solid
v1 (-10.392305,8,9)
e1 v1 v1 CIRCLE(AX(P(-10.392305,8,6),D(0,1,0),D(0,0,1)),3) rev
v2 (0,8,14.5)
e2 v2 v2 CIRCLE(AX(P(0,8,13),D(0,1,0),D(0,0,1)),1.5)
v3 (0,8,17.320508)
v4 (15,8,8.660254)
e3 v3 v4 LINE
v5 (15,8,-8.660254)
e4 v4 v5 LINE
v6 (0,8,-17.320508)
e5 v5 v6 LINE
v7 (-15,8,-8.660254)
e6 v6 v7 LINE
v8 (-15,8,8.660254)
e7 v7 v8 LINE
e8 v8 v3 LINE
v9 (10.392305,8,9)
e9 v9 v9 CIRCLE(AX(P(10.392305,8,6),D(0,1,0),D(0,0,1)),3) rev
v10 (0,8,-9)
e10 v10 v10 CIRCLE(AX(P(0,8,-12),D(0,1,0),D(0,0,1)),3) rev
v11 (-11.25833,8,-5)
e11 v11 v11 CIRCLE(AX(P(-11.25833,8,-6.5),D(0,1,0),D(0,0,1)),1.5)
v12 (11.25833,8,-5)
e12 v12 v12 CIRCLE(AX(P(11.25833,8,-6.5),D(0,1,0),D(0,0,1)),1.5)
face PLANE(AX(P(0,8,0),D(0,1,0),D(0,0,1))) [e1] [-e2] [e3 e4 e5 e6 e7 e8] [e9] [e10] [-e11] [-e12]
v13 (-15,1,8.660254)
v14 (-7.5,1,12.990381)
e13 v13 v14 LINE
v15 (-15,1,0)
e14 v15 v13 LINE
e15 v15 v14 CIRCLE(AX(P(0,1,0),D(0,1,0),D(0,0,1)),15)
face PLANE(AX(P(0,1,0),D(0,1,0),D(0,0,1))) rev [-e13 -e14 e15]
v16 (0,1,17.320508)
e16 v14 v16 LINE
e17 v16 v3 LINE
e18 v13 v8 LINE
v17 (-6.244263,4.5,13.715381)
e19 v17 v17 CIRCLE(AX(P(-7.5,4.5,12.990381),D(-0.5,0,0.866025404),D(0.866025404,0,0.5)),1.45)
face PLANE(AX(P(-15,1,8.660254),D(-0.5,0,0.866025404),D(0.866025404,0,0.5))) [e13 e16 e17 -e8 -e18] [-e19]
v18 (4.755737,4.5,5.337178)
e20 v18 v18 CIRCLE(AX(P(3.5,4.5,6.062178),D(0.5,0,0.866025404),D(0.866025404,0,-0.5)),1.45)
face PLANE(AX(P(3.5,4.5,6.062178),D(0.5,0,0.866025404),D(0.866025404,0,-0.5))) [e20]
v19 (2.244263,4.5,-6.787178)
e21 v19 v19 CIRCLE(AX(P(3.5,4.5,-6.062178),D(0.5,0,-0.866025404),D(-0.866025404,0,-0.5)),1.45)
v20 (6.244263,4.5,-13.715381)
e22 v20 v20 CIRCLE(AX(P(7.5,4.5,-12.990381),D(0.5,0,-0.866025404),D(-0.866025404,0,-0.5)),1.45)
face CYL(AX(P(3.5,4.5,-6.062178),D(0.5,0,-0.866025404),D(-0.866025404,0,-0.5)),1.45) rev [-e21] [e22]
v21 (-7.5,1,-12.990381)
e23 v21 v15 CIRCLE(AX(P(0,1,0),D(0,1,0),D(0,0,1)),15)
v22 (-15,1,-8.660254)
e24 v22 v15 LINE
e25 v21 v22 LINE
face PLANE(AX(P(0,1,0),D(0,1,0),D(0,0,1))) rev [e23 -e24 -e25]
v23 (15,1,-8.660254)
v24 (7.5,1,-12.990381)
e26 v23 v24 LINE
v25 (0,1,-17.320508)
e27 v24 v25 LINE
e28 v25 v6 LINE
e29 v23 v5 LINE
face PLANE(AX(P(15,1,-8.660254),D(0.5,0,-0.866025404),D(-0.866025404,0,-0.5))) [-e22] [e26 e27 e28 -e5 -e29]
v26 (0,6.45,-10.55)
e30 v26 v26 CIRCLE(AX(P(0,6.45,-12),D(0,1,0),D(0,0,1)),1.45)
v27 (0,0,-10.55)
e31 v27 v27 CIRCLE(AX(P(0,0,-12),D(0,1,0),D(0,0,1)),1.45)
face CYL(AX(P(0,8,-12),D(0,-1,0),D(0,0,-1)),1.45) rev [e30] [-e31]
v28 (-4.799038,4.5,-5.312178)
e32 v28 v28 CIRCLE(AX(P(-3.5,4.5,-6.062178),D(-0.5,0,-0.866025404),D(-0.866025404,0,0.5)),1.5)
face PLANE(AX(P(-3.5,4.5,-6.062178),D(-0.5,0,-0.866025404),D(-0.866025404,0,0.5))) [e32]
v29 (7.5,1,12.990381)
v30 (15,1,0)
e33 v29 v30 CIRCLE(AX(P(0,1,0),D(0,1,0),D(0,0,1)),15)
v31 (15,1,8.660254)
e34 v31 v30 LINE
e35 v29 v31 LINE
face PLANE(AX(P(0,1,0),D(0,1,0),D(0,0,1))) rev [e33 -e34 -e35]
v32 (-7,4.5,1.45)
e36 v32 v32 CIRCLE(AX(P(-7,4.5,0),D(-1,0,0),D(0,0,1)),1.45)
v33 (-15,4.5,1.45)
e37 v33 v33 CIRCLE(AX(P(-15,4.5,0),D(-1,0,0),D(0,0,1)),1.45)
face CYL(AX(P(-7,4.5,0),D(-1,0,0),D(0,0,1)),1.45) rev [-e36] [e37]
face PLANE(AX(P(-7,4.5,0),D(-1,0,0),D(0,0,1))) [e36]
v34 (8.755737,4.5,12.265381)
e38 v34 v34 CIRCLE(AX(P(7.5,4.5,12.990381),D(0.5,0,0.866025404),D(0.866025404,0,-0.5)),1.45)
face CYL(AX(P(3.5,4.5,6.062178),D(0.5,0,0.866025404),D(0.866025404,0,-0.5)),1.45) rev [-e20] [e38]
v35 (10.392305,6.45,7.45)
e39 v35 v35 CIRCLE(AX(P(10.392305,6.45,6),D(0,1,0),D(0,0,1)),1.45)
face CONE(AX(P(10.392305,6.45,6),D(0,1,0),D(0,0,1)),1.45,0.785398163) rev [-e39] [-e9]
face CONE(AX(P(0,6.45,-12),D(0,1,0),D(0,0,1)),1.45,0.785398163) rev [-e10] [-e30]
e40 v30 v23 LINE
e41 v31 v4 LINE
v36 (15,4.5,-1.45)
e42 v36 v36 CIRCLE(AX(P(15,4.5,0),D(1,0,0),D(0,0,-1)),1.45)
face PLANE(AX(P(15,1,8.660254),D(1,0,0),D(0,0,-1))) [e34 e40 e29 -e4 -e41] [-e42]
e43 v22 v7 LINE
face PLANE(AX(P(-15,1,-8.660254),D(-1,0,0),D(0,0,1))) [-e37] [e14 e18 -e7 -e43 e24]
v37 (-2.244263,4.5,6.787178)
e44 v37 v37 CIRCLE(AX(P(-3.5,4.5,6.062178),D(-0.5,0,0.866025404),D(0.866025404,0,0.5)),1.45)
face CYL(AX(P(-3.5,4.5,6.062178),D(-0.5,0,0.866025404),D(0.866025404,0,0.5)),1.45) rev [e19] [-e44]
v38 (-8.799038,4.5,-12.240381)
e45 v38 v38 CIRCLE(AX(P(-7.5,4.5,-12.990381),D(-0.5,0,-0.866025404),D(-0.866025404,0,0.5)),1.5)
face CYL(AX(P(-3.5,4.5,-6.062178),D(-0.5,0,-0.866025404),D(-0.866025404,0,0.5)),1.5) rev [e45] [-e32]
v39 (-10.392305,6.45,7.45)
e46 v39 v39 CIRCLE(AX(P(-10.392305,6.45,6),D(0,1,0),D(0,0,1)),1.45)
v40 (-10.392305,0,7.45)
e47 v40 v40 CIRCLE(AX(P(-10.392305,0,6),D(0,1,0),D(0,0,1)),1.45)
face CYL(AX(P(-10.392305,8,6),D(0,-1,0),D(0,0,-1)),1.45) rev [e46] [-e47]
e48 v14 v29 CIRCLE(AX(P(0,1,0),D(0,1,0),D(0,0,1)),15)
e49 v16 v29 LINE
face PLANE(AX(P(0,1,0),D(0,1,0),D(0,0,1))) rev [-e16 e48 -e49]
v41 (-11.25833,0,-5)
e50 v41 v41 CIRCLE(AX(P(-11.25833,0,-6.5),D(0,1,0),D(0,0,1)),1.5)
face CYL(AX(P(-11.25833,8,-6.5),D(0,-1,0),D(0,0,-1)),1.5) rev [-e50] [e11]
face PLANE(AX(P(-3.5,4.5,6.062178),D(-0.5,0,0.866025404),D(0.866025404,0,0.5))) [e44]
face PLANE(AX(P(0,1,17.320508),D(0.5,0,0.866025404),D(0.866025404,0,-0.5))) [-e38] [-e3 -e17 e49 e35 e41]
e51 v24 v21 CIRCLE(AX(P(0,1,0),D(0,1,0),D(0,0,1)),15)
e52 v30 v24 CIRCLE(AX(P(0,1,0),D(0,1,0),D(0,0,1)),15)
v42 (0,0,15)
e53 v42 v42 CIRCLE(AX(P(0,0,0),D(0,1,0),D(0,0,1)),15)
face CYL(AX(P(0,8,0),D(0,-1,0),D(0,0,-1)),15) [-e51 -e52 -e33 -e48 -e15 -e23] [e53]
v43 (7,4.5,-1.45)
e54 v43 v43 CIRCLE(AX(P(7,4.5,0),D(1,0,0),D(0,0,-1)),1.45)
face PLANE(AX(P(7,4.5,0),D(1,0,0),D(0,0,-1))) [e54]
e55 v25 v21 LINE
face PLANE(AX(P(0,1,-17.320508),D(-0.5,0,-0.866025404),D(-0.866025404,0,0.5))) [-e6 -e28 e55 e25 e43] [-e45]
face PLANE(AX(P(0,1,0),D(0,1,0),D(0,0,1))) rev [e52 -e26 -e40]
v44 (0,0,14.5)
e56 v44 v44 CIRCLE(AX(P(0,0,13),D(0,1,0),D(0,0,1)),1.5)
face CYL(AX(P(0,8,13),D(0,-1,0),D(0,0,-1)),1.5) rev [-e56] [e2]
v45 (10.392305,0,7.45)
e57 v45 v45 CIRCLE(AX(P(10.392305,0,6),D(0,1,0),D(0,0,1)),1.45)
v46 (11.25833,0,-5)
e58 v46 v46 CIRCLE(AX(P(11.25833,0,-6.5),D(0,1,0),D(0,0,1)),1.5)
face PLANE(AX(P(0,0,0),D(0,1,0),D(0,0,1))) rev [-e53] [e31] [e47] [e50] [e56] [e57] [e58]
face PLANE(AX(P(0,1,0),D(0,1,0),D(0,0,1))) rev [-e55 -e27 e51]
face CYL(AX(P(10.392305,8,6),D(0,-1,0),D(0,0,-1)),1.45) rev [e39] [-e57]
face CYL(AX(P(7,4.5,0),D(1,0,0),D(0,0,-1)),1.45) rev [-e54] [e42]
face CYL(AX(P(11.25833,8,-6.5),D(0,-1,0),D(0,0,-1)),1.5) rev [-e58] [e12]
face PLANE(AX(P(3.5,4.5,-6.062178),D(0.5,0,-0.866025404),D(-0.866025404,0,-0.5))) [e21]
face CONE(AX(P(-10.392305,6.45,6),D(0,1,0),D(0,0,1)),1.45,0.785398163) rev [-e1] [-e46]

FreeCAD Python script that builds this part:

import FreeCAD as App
import Part
import Sketcher
Q = App.Units.Quantity


def edges_at(feature, points):
    """Names of the edges that pass closest to the given points."""
    edges = feature.Shape.Edges
    near = lambda p: min(range(len(edges)), key=lambda i: edges[i].distToShape(Part.Vertex(*p))[0])
    return sorted({f"Edge{near(p) + 1}" for p in points})


def add_polygon(sketch, points):
    """Adds a closed chain of lines whose ends are joined by coincident constraints."""
    first, n = sketch.GeometryCount, len(points)
    for a, b in zip(points, points[1:] + points[:1]):
        sketch.addGeometry(Part.LineSegment(App.Vector(*a, 0), App.Vector(*b, 0)), False)
    for i in range(n):
        sketch.addConstraint(Sketcher.Constraint("Coincident", first + i, 2, first + (i + 1) % n, 1))

doc = App.newDocument("Part")
params = doc.addObject("Spreadsheet::Sheet", "Params")
for row, (alias, value) in enumerate([
    ("sketch1_diameter", "30 mm"),
    ("sketch1_diameter2", "3 mm"),
    ("sketch1_diameter3", "2.9 mm"),
    ("pad1_length", "8 mm"),
    ("sketch2_diameter", "3 mm"),
    ("sketch2_diameter2", "2.9 mm"),
    ("pad2_length", "7 mm"),
    ("sketch3_diameter", "2.9 mm"),
    ("pocket1_length", "8 mm"),
    ("sketch4_diameter", "2.9 mm"),
    ("pocket2_length", "8 mm"),
    ("sketch5_diameter", "2.9 mm"),
    ("pocket3_length", "8 mm"),
    ("sketch6_diameter", "2.9 mm"),
    ("pocket4_length", "8 mm"),
    ("sketch7_diameter", "2.9 mm"),
    ("pocket5_length", "8 mm"),
    ("sketch8_diameter", "3 mm"),
    ("pocket6_length", "8 mm"),
    ("chamfer_size", "1.55 mm"),
], start=1):
    params.set(f"A{row}", alias)
    params.set(f"B{row}", "=" + value)
    params.setAlias(f"B{row}", alias)

body = doc.addObject("PartDesign::Body", "Body")

# Sketch on XZ plane
sketch1 = doc.addObject("Sketcher::SketchObject", "Sketch")
body.addObject(sketch1)
sketch1.AttachmentSupport = (doc.XZ_Plane, [""])
sketch1.MapMode = "FlatFace"
sketch1.addGeometry([
    Part.Circle(App.Vector(0, 0, 0), App.Vector(0, 0, 1), 15),  # 0
    Part.Circle(App.Vector(-10.4, 6, 0), App.Vector(0, 0, 1), 1.4),  # 1
    Part.Circle(App.Vector(0, 13, 0), App.Vector(0, 0, 1), 1.5),  # 2
    Part.Circle(App.Vector(10.4, 6, 0), App.Vector(0, 0, 1), 1.4),  # 3
    Part.Circle(App.Vector(-11.3, -6.5, 0), App.Vector(0, 0, 1), 1.5),  # 4
    Part.Circle(App.Vector(0, -12, 0), App.Vector(0, 0, 1), 1.4),  # 5
    Part.Circle(App.Vector(11.3, -6.5, 0), App.Vector(0, 0, 1), 1.5),  # 6
], False)
sketch1.addConstraint([
    Sketcher.Constraint("Coincident", 0, 3, -1, 1),
    Sketcher.Constraint("Equal", 1, 3),
    Sketcher.Constraint("Equal", 2, 4),
    Sketcher.Constraint("Equal", 3, 5),
    Sketcher.Constraint("Equal", 4, 6),
    Sketcher.Constraint("Symmetric", 1, 3, 3, 3, -2),
    Sketcher.Constraint("Symmetric", 4, 3, 6, 3, -2),
    Sketcher.Constraint("PointOnObject", 2, 3, -2),
    Sketcher.Constraint("PointOnObject", 5, 3, -2),
    Sketcher.Constraint("Diameter", 0, Q("30 mm")),
    Sketcher.Constraint("Diameter", 2, Q("3 mm")),
    Sketcher.Constraint("Diameter", 1, Q("2.9 mm")),
    Sketcher.Constraint("DistanceY", -1, 1, 1, 3, Q("6 mm")),
    Sketcher.Constraint("DistanceY", -1, 1, 2, 3, Q("13 mm")),
    Sketcher.Constraint("DistanceY", 5, 3, -1, 1, Q("12 mm")),
    Sketcher.Constraint("DistanceY", 4, 3, -1, 1, Q("6.5 mm")),
    Sketcher.Constraint("DistanceX", 4, 3, -1, 1, Q("11.25833 mm")),
    Sketcher.Constraint("DistanceX", 1, 3, 3, 3, Q("20.78461 mm")),
])
sketch1.setExpression("Constraints[9]", "Params.sketch1_diameter")
sketch1.setExpression("Constraints[10]", "Params.sketch1_diameter2")
sketch1.setExpression("Constraints[11]", "Params.sketch1_diameter3")
pad1 = doc.addObject("PartDesign::Pad", "Pad")
body.addObject(pad1)
pad1.Profile = sketch1
pad1.setExpression("Length", "Params.pad1_length")
pad1.Reversed = True

# Sketch on XZ plane
sketch2 = doc.addObject("Sketcher::SketchObject", "Sketch001")
body.addObject(sketch2)
sketch2.AttachmentSupport = (doc.XZ_Plane, [""])
sketch2.MapMode = "FlatFace"
sketch2.AttachmentOffset = App.Placement(App.Vector(0, 0, -8), App.Rotation())
add_polygon(sketch2, [(0, -17.3), (-15, -8.7), (-15, 8.7), (0, 17.3), (15, 8.7), (15, -8.7)])  # lines 0-5
sketch2.addGeometry(Part.Circle(App.Vector(-10.4, 6, 0), App.Vector(0, 0, 1), 1.4), False)  # 6
sketch2.addGeometry(Part.Circle(App.Vector(0, 13, 0), App.Vector(0, 0, 1), 1.5), False)  # 7
sketch2.addGeometry(Part.Circle(App.Vector(10.4, 6, 0), App.Vector(0, 0, 1), 1.4), False)  # 8
sketch2.addGeometry(Part.Circle(App.Vector(-11.3, -6.5, 0), App.Vector(0, 0, 1), 1.5), False)  # 9
sketch2.addGeometry(Part.Circle(App.Vector(0, -12, 0), App.Vector(0, 0, 1), 1.4), False)  # 10
sketch2.addGeometry(Part.Circle(App.Vector(11.3, -6.5, 0), App.Vector(0, 0, 1), 1.5), False)  # 11
sketch2.addConstraint([
    Sketcher.Constraint("Vertical", 1),
    Sketcher.Constraint("Vertical", 4),
    Sketcher.Constraint("Equal", 6, 8),
    Sketcher.Constraint("Equal", 7, 9),
    Sketcher.Constraint("Equal", 8, 10),
    Sketcher.Constraint("Equal", 9, 11),
    Sketcher.Constraint("Symmetric", 0, 2, 3, 2, -1, 1),
    Sketcher.Constraint("Symmetric", 2, 2, 5, 2, -1, 1),
    Sketcher.Constraint("Symmetric", 6, 3, 8, 3, -2),
    Sketcher.Constraint("Symmetric", 9, 3, 11, 3, -2),
    Sketcher.Constraint("PointOnObject", 7, 3, -2),
    Sketcher.Constraint("PointOnObject", 10, 3, -2),
    Sketcher.Constraint("PointOnObject", 2, 2, -2),
    Sketcher.Constraint("Parallel", 2, 5),
    Sketcher.Constraint("Horizontal", 1, 2, 3, 2),
    Sketcher.Constraint("Diameter", 7, Q("3 mm")),
    Sketcher.Constraint("Diameter", 6, Q("2.9 mm")),
    Sketcher.Constraint("Angle", 0, Q("150 deg")),
    Sketcher.Constraint("DistanceY", -1, 1, 6, 3, Q("6 mm")),
    Sketcher.Constraint("DistanceY", -1, 1, 7, 3, Q("13 mm")),
    Sketcher.Constraint("DistanceY", 10, 3, -1, 1, Q("12 mm")),
    Sketcher.Constraint("DistanceX", 0, 2, -1, 1, Q("15 mm")),
    Sketcher.Constraint("DistanceY", 9, 3, -1, 1, Q("6.5 mm")),
    Sketcher.Constraint("DistanceY", 1, 1, 1, 2, Q("17.320508 mm")),
    Sketcher.Constraint("DistanceX", 9, 3, -1, 1, Q("11.25833 mm")),
    Sketcher.Constraint("DistanceX", 6, 3, 8, 3, Q("20.78461 mm")),
])
sketch2.setExpression("Constraints[21]", "Params.sketch2_diameter")
sketch2.setExpression("Constraints[22]", "Params.sketch2_diameter2")
pad2 = doc.addObject("PartDesign::Pad", "Pad001")
body.addObject(pad2)
pad2.Profile = sketch2
pad2.setExpression("Length", "Params.pad2_length")

# Sketch on an angled plane
sketch3 = doc.addObject("Sketcher::SketchObject", "Sketch002")
body.addObject(sketch3)
sketch3.Placement = App.Placement(App.Vector(7.5, 0, 12.990381), App.Rotation(App.Vector(0.866025404, 0, -0.5), App.Vector(0, 1, 0), App.Vector(0.5, 0, 0.866025404), "ZXY"))
sketch3.addGeometry(Part.Circle(App.Vector(0, 4.5, 0), App.Vector(0, 0, 1), 1.4), False)
sketch3.addConstraint([
    Sketcher.Constraint("PointOnObject", 0, 3, -2),
    Sketcher.Constraint("Diameter", 0, Q("2.9 mm")),
    Sketcher.Constraint("DistanceY", -1, 1, 0, 3, Q("4.5 mm")),
])
sketch3.setExpression("Constraints[1]", "Params.sketch3_diameter")
pocket1 = doc.addObject("PartDesign::Pocket", "Pocket")
body.addObject(pocket1)
pocket1.Profile = sketch3
pocket1.setExpression("Length", "Params.pocket1_length")

# Sketch on an angled plane
sketch4 = doc.addObject("Sketcher::SketchObject", "Sketch003")
body.addObject(sketch4)
sketch4.Placement = App.Placement(App.Vector(-7.5, 0, 12.990381), App.Rotation(App.Vector(0.866025404, 0, 0.5), App.Vector(0, 1, 0), App.Vector(-0.5, 0, 0.866025404), "ZXY"))
sketch4.addGeometry(Part.Circle(App.Vector(0, 4.5, 0), App.Vector(0, 0, 1), 1.4), False)
sketch4.addConstraint([
    Sketcher.Constraint("PointOnObject", 0, 3, -2),
    Sketcher.Constraint("Diameter", 0, Q("2.9 mm")),
    Sketcher.Constraint("DistanceY", -1, 1, 0, 3, Q("4.5 mm")),
])
sketch4.setExpression("Constraints[1]", "Params.sketch4_diameter")
pocket2 = doc.addObject("PartDesign::Pocket", "Pocket001")
body.addObject(pocket2)
pocket2.Profile = sketch4
pocket2.setExpression("Length", "Params.pocket2_length")

# Sketch on YZ plane
sketch5 = doc.addObject("Sketcher::SketchObject", "Sketch004")
body.addObject(sketch5)
sketch5.AttachmentSupport = (doc.YZ_Plane, [""])
sketch5.MapMode = "FlatFace"
sketch5.AttachmentOffset = App.Placement(App.Vector(0, 0, -15), App.Rotation())
sketch5.addGeometry(Part.Circle(App.Vector(4.5, 0, 0), App.Vector(0, 0, 1), 1.4), False)
sketch5.addConstraint([
    Sketcher.Constraint("PointOnObject", 0, 3, -1),
    Sketcher.Constraint("Diameter", 0, Q("2.9 mm")),
    Sketcher.Constraint("DistanceX", -1, 1, 0, 3, Q("4.5 mm")),
])
sketch5.setExpression("Constraints[1]", "Params.sketch5_diameter")
pocket3 = doc.addObject("PartDesign::Pocket", "Pocket002")
body.addObject(pocket3)
pocket3.Profile = sketch5
pocket3.setExpression("Length", "Params.pocket3_length")
pocket3.Reversed = True

# Sketch on YZ plane
sketch6 = doc.addObject("Sketcher::SketchObject", "Sketch005")
body.addObject(sketch6)
sketch6.AttachmentSupport = (doc.YZ_Plane, [""])
sketch6.MapMode = "FlatFace"
sketch6.AttachmentOffset = App.Placement(App.Vector(0, 0, 15), App.Rotation())
sketch6.addGeometry(Part.Circle(App.Vector(4.5, 0, 0), App.Vector(0, 0, 1), 1.4), False)
sketch6.addConstraint([
    Sketcher.Constraint("PointOnObject", 0, 3, -1),
    Sketcher.Constraint("Diameter", 0, Q("2.9 mm")),
    Sketcher.Constraint("DistanceX", -1, 1, 0, 3, Q("4.5 mm")),
])
sketch6.setExpression("Constraints[1]", "Params.sketch6_diameter")
pocket4 = doc.addObject("PartDesign::Pocket", "Pocket003")
body.addObject(pocket4)
pocket4.Profile = sketch6
pocket4.setExpression("Length", "Params.pocket4_length")

# Sketch on an angled plane
sketch7 = doc.addObject("Sketcher::SketchObject", "Sketch006")
body.addObject(sketch7)
sketch7.Placement = App.Placement(App.Vector(7.5, 0, -12.990381), App.Rotation(App.Vector(-0.866025404, 0, -0.5), App.Vector(0, 1, 0), App.Vector(0.5, 0, -0.866025404), "ZXY"))
sketch7.addGeometry(Part.Circle(App.Vector(0, 4.5, 0), App.Vector(0, 0, 1), 1.4), False)
sketch7.addConstraint([
    Sketcher.Constraint("PointOnObject", 0, 3, -2),
    Sketcher.Constraint("Diameter", 0, Q("2.9 mm")),
    Sketcher.Constraint("DistanceY", -1, 1, 0, 3, Q("4.5 mm")),
])
sketch7.setExpression("Constraints[1]", "Params.sketch7_diameter")
pocket5 = doc.addObject("PartDesign::Pocket", "Pocket004")
body.addObject(pocket5)
pocket5.Profile = sketch7
pocket5.setExpression("Length", "Params.pocket5_length")

# Sketch on an angled plane
sketch8 = doc.addObject("Sketcher::SketchObject", "Sketch007")
body.addObject(sketch8)
sketch8.Placement = App.Placement(App.Vector(-7.5, 0, -12.990381), App.Rotation(App.Vector(-0.866025404, 0, 0.5), App.Vector(0, 1, 0), App.Vector(-0.5, 0, -0.866025404), "ZXY"))
sketch8.addGeometry(Part.Circle(App.Vector(0, 4.5, 0), App.Vector(0, 0, 1), 1.5), False)
sketch8.addConstraint([
    Sketcher.Constraint("PointOnObject", 0, 3, -2),
    Sketcher.Constraint("Diameter", 0, Q("3 mm")),
    Sketcher.Constraint("DistanceY", -1, 1, 0, 3, Q("4.5 mm")),
])
sketch8.setExpression("Constraints[1]", "Params.sketch8_diameter")
pocket6 = doc.addObject("PartDesign::Pocket", "Pocket005")
body.addObject(pocket6)
pocket6.Profile = sketch8
pocket6.setExpression("Length", "Params.pocket6_length")
doc.recompute()

chamfer = doc.addObject("PartDesign::Chamfer", "Chamfer")
body.addObject(chamfer)
chamfer.Base = (pocket6, edges_at(pocket6, [(8.942, 8, 6), (-1.45, 8, -12), (-11.842, 8, 6)]))
chamfer.setExpression("Size", "Params.chamfer_size")

doc.recompute()
